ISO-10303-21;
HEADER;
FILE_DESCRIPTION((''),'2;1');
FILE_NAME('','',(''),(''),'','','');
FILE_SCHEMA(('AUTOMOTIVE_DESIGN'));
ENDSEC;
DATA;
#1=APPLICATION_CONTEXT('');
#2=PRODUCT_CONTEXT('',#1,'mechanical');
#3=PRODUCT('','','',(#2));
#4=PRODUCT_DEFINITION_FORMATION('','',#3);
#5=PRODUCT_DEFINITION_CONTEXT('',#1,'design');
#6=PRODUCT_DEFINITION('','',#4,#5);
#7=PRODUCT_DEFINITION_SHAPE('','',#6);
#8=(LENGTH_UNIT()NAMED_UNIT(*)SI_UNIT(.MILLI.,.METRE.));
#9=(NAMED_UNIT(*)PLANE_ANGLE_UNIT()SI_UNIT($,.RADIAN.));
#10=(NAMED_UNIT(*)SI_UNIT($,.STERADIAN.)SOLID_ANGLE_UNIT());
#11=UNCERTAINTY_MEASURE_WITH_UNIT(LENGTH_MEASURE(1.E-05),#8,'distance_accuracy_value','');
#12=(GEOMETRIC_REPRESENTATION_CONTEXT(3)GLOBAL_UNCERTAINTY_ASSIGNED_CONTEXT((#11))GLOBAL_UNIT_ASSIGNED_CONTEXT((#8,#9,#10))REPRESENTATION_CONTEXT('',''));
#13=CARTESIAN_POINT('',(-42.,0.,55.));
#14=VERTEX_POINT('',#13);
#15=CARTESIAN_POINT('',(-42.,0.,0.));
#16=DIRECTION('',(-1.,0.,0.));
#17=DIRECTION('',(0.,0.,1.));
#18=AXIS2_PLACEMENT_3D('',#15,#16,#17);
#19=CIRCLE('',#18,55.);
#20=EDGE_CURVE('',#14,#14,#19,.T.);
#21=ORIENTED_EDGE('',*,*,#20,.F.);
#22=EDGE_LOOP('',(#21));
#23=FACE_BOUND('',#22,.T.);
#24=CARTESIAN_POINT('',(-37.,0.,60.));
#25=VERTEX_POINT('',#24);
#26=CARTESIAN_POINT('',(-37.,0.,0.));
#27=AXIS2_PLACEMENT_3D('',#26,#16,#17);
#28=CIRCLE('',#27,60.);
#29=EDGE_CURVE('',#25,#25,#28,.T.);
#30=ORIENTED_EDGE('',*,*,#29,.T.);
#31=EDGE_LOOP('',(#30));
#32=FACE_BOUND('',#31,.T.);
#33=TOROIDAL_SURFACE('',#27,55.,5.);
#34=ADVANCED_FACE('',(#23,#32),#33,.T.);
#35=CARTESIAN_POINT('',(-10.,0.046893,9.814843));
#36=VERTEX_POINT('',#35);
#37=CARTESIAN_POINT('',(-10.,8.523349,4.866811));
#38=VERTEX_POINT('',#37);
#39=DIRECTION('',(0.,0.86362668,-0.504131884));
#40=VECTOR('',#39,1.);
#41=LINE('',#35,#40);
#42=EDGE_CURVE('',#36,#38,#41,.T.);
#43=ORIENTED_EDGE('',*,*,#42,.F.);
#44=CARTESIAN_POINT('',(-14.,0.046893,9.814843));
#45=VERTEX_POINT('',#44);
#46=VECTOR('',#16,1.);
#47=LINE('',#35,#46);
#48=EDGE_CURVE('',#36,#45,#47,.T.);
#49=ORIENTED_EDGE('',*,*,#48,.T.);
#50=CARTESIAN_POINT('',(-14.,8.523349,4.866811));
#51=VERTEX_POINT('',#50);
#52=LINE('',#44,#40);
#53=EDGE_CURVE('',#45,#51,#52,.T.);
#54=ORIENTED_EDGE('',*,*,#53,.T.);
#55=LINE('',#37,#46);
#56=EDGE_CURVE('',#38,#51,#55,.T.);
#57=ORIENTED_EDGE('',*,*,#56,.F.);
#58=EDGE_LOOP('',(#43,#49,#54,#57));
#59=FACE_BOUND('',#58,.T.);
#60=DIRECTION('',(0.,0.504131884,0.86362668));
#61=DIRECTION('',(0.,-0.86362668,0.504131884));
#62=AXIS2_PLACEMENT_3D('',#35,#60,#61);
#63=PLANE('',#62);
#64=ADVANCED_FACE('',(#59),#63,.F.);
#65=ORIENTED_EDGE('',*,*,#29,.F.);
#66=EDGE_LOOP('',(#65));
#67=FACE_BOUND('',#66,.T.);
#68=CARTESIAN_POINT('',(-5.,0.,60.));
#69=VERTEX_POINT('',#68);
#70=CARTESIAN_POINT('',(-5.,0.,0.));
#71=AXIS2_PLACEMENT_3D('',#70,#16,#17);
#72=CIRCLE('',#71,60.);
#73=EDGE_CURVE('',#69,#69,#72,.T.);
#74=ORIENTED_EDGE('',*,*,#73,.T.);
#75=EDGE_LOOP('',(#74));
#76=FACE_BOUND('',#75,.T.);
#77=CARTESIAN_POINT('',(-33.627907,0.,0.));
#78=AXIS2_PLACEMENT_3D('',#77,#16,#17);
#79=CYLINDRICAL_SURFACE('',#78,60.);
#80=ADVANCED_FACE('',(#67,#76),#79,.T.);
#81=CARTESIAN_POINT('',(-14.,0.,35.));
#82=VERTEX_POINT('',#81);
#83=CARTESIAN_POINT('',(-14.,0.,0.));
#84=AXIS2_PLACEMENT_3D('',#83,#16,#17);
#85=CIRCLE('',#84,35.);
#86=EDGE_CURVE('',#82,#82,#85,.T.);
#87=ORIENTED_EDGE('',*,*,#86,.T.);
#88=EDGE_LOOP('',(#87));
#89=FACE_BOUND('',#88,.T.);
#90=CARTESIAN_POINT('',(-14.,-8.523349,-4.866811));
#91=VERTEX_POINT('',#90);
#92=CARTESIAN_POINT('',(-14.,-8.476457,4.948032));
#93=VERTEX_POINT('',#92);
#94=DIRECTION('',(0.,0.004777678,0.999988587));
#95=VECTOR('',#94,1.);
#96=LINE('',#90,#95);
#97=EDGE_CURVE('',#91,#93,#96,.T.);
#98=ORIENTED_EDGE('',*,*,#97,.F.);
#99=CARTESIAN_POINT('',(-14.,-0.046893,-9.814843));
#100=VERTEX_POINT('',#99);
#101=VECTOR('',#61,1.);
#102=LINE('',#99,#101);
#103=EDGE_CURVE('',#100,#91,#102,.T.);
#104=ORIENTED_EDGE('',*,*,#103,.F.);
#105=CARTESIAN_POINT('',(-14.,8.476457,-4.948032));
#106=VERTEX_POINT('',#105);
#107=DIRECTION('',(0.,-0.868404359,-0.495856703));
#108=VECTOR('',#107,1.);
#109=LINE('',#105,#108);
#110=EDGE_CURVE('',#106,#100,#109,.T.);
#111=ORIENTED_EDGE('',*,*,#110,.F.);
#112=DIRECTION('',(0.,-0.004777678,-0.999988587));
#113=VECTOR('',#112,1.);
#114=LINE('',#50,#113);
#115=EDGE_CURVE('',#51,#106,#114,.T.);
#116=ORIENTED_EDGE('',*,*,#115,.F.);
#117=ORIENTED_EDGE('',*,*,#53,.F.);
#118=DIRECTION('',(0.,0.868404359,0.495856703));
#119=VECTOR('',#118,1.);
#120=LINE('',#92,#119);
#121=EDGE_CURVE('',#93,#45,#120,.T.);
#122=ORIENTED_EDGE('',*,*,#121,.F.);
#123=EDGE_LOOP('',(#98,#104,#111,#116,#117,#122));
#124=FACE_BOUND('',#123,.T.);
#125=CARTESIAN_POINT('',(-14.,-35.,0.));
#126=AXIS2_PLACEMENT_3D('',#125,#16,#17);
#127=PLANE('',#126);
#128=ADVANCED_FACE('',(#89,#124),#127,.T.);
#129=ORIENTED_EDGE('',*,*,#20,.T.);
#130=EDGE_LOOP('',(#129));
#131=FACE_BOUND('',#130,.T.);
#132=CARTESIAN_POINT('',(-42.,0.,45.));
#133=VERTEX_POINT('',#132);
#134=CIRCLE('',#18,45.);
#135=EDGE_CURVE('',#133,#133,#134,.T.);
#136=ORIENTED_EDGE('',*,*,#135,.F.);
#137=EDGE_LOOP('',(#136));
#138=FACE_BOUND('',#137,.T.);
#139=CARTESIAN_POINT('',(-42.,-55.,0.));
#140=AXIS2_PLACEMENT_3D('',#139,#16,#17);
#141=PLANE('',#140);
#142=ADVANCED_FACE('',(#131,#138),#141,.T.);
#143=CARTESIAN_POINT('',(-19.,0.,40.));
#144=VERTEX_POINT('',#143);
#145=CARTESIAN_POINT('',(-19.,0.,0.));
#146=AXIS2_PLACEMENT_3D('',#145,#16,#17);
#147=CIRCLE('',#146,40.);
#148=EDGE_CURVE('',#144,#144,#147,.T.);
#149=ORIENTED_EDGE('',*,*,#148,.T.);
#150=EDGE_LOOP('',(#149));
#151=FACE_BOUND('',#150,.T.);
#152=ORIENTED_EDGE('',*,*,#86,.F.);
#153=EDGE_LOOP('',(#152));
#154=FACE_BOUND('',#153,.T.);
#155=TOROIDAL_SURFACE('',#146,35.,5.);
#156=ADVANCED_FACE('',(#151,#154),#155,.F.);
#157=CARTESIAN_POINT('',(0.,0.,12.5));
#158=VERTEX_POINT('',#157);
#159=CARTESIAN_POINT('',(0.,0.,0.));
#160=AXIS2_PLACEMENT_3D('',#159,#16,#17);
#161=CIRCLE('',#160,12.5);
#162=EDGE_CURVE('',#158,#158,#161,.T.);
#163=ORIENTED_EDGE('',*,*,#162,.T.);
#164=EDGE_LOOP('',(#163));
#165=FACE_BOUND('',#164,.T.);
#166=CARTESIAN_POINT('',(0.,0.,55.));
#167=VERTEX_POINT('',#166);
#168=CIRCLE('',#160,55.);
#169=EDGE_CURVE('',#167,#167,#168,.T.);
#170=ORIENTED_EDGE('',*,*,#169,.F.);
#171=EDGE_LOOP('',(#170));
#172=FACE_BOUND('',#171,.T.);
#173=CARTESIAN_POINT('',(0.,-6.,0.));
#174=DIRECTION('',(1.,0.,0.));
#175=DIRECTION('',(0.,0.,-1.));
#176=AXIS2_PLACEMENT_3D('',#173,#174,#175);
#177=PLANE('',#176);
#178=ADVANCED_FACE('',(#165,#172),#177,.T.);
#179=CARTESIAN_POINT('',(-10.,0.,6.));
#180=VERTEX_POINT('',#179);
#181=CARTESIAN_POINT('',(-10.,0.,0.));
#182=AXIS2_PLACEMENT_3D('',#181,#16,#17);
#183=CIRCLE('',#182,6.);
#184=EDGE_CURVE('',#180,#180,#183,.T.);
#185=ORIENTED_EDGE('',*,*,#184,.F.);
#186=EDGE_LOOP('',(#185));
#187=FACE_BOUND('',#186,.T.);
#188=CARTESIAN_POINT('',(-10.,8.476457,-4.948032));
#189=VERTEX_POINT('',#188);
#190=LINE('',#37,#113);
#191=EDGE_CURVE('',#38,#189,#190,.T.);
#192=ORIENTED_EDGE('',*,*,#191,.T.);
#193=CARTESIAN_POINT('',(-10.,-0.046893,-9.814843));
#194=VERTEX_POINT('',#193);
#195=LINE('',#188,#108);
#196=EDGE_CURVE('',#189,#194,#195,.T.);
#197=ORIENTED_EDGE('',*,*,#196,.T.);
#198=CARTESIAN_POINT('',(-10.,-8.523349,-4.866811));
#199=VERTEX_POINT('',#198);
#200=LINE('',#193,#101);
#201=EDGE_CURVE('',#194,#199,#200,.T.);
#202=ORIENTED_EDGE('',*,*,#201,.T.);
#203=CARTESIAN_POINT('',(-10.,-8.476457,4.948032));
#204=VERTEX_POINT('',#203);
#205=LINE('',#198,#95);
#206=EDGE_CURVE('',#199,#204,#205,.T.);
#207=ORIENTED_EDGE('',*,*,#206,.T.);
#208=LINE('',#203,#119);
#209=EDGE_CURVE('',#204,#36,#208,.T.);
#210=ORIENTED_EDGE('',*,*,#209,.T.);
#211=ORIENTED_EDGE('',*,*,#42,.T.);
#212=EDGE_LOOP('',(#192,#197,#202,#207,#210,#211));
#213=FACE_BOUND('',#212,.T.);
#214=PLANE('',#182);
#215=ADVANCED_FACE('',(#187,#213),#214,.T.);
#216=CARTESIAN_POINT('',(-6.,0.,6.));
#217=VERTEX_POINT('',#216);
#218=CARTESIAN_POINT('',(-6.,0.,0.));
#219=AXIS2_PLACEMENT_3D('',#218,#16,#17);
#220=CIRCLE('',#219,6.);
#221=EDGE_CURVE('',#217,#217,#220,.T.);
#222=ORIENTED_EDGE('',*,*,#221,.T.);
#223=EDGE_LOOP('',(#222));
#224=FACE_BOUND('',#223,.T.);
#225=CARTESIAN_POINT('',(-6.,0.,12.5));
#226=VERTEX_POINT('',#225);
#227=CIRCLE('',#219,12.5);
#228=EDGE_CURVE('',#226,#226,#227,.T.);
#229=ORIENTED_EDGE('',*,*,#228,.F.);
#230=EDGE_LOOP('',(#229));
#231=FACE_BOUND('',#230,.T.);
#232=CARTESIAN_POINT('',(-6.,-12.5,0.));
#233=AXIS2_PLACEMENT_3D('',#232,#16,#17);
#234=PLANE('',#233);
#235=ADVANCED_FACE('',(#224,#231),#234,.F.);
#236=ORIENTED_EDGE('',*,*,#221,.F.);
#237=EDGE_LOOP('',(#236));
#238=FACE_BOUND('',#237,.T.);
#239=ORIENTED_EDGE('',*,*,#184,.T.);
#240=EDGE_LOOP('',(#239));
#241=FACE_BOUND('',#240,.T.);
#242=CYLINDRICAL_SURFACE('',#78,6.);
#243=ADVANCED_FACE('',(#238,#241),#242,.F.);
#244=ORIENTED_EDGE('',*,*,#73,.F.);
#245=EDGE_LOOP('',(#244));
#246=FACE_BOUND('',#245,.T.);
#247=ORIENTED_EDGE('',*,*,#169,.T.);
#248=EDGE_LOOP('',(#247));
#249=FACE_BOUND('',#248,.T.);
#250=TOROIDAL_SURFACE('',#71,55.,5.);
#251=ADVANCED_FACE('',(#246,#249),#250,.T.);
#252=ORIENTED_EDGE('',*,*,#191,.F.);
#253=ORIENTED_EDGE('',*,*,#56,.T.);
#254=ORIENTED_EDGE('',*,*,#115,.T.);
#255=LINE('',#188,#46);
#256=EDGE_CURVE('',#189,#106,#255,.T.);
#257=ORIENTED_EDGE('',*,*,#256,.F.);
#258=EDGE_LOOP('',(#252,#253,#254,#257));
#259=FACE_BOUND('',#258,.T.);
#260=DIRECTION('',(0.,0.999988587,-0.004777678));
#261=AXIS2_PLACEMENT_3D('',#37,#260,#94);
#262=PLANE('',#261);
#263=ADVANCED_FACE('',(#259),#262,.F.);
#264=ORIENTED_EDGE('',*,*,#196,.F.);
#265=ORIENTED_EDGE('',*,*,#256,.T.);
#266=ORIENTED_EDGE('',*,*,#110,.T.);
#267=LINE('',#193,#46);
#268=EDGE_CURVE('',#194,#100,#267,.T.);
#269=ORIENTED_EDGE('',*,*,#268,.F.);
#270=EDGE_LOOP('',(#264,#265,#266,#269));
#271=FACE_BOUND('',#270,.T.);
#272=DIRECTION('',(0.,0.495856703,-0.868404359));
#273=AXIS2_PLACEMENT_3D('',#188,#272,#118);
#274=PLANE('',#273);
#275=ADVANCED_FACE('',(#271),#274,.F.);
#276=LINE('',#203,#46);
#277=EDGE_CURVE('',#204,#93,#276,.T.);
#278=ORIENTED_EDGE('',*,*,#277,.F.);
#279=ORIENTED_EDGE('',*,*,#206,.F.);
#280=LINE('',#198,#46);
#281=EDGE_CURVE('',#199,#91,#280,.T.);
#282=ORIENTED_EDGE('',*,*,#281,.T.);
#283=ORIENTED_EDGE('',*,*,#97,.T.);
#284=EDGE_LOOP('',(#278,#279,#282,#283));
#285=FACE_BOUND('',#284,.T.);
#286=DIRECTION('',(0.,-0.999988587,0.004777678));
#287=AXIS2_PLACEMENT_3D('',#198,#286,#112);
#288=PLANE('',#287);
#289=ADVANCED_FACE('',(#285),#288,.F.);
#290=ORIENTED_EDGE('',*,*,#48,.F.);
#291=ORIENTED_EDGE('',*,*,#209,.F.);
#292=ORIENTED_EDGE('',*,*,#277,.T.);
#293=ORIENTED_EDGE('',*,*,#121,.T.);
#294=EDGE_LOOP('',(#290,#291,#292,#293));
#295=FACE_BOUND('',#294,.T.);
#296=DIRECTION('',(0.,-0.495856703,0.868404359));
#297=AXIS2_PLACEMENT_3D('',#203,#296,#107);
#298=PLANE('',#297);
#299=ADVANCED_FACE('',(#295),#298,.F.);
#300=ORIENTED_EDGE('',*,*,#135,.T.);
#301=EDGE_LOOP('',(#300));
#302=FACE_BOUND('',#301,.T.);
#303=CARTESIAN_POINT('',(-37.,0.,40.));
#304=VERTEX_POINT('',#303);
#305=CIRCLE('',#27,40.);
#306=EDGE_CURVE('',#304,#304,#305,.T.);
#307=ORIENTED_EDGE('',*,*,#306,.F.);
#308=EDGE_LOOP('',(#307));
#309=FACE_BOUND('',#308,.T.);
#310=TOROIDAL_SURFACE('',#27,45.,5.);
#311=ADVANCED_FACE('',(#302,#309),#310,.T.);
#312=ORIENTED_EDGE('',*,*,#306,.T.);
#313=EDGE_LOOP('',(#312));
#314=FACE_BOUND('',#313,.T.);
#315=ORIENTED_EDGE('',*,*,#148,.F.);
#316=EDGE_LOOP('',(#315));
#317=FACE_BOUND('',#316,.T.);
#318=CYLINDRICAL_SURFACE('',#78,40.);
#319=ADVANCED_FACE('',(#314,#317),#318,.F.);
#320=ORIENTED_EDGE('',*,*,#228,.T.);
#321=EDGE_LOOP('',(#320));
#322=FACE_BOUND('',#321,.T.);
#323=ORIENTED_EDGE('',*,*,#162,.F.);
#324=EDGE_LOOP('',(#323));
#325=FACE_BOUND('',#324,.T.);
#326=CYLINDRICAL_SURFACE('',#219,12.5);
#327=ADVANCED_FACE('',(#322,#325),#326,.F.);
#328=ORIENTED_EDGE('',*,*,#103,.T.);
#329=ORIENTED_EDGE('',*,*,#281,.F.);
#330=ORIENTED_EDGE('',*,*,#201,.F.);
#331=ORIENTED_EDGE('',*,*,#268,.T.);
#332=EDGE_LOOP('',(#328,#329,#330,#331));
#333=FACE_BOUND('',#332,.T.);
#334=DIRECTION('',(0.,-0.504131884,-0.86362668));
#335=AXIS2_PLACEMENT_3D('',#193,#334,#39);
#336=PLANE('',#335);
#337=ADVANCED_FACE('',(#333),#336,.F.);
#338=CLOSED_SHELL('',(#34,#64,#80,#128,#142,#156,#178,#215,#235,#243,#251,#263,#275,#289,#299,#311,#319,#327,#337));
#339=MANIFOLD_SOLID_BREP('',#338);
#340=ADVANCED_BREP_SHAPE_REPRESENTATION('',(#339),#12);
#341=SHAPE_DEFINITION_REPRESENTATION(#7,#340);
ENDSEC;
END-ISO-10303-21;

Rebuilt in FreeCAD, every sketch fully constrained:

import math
import FreeCAD as App
import Part
import Sketcher
Q = App.Units.Quantity


def add_polygon(sketch, points):
    """Adds a closed chain of lines whose ends are joined by coincident constraints."""
    first, n = sketch.GeometryCount, len(points)
    for a, b in zip(points, points[1:] + points[:1]):
        sketch.addGeometry(Part.LineSegment(App.Vector(*a, 0), App.Vector(*b, 0)), False)
    for i in range(n):
        sketch.addConstraint(Sketcher.Constraint("Coincident", first + i, 2, first + (i + 1) % n, 1))

doc = App.newDocument("Part")
body = doc.addObject("PartDesign::Body", "Body")

sketch1 = doc.addObject("Sketcher::SketchObject", "Sketch")
body.addObject(sketch1)
sketch1.AttachmentSupport = (doc.XY_Plane, [""])
sketch1.MapMode = "FlatFace"
sketch1.addGeometry(Part.LineSegment(App.Vector(0, -55, 0), App.Vector(0, -6, 0)), False)
sketch1.addGeometry(Part.LineSegment(App.Vector(0, -6, 0), App.Vector(-14, -6, 0)), False)
sketch1.addGeometry(Part.LineSegment(App.Vector(-14, -6, 0), App.Vector(-14, -35, 0)), False)
sketch1.addGeometry(Part.ArcOfCircle(Part.Circle(App.Vector(-19, -35, 0), App.Vector(0, 0, 1), 5), math.radians(-90), math.radians(0)), False)
sketch1.addGeometry(Part.LineSegment(App.Vector(-19, -40, 0), App.Vector(-37, -40, 0)), False)
sketch1.addGeometry(Part.ArcOfCircle(Part.Circle(App.Vector(-37, -45, 0), App.Vector(0, 0, 1), 5), math.radians(90), math.radians(180)), False)
sketch1.addGeometry(Part.LineSegment(App.Vector(-42, -45, 0), App.Vector(-42, -55, 0)), False)
sketch1.addGeometry(Part.ArcOfCircle(Part.Circle(App.Vector(-37, -55, 0), App.Vector(0, 0, 1), 5), math.radians(180), math.radians(270)), False)
sketch1.addGeometry(Part.LineSegment(App.Vector(-37, -60, 0), App.Vector(-5, -60, 0)), False)
sketch1.addGeometry(Part.ArcOfCircle(Part.Circle(App.Vector(-5, -55, 0), App.Vector(0, 0, 1), 5), math.radians(-90), math.radians(0)), False)
sketch1.addConstraint(Sketcher.Constraint("Coincident", 0, 2, 1, 1))
sketch1.addConstraint(Sketcher.Constraint("Coincident", 1, 2, 2, 1))
sketch1.addConstraint(Sketcher.Constraint("Tangent", 2, 2, 3, 2))
sketch1.addConstraint(Sketcher.Constraint("Tangent", 3, 1, 4, 1))
sketch1.addConstraint(Sketcher.Constraint("Tangent", 4, 2, 5, 1))
sketch1.addConstraint(Sketcher.Constraint("Tangent", 5, 2, 6, 1))
sketch1.addConstraint(Sketcher.Constraint("Tangent", 6, 2, 7, 1))
sketch1.addConstraint(Sketcher.Constraint("Tangent", 7, 2, 8, 1))
sketch1.addConstraint(Sketcher.Constraint("Tangent", 8, 2, 9, 1))
sketch1.addConstraint(Sketcher.Constraint("Tangent", 9, 2, 0, 1))
sketch1.addConstraint(Sketcher.Constraint("Vertical", 0))
sketch1.addConstraint(Sketcher.Constraint("Horizontal", 1))
sketch1.addConstraint(Sketcher.Constraint("Vertical", 2))
sketch1.addConstraint(Sketcher.Constraint("Horizontal", 4))
sketch1.addConstraint(Sketcher.Constraint("Vertical", 6))
sketch1.addConstraint(Sketcher.Constraint("Horizontal", 8))
sketch1.addConstraint(Sketcher.Constraint("Equal", 3, 5))
sketch1.addConstraint(Sketcher.Constraint("Equal", 5, 7))
sketch1.addConstraint(Sketcher.Constraint("Equal", 7, 9))
sketch1.addConstraint(Sketcher.Constraint("PointOnObject", 0, 2, -2))
sketch1.addConstraint(Sketcher.Constraint("Radius", 3, Q("5 mm")))
sketch1.addConstraint(Sketcher.Constraint("DistanceX", 1, 2, 1, 1, Q("14 mm")))
sketch1.addConstraint(Sketcher.Constraint("DistanceX", 4, 2, 4, 1, Q("18 mm")))
sketch1.addConstraint(Sketcher.Constraint("DistanceY", 0, 1, 0, 2, Q("49 mm")))
sketch1.addConstraint(Sketcher.Constraint("DistanceY", 2, 2, 2, 1, Q("29 mm")))
sketch1.addConstraint(Sketcher.Constraint("DistanceY", 3, 3, -1, 1, Q("35 mm")))
revolution = doc.addObject("PartDesign::Revolution", "Revolution")
body.addObject(revolution)
revolution.Profile = sketch1
revolution.ReferenceAxis = (sketch1, ["H_Axis"])
revolution.Angle = 360

sketch2 = doc.addObject("Sketcher::SketchObject", "Sketch001")
body.addObject(sketch2)
sketch2.AttachmentSupport = (doc.YZ_Plane, [""])
sketch2.MapMode = "FlatFace"
sketch2.AttachmentOffset = App.Placement(App.Vector(0, 0, -14), App.Rotation())
add_polygon(sketch2, [(-8.476457, 4.948032), (0.046893, 9.814843), (8.523349, 4.866811), (8.476457, -4.948032), (-0.046893, -9.814843), (-8.523349, -4.866811)])
sketch2.addConstraint(Sketcher.Constraint("Symmetric", 0, 2, 3, 2, -1, 1))
sketch2.addConstraint(Sketcher.Constraint("Symmetric", 1, 2, 4, 2, -1, 1))
sketch2.addConstraint(Sketcher.Constraint("Symmetric", 2, 2, 5, 2, -1, 1))
sketch2.addConstraint(Sketcher.Constraint("Equal", 0, 1))
sketch2.addConstraint(Sketcher.Constraint("Equal", 1, 2))
sketch2.addConstraint(Sketcher.Constraint("DistanceX", 4, 2, 1, 2, Q("17.046699 mm")))
sketch2.addConstraint(Sketcher.Constraint("DistanceY", -1, 1, 1, 2, Q("4.866811 mm")))
sketch2.addConstraint(Sketcher.Constraint("DistanceY", 2, 2, -1, 1, Q("4.948032 mm")))
sketch2.addConstraint(Sketcher.Constraint("DistanceY", 1, 2, 0, 2, Q("4.948032 mm")))
pocket1 = doc.addObject("PartDesign::Pocket", "Pocket")
body.addObject(pocket1)
pocket1.Profile = sketch2
pocket1.Length = 4
pocket1.Reversed = True

sketch3 = doc.addObject("Sketcher::SketchObject", "Sketch002")
body.addObject(sketch3)
sketch3.AttachmentSupport = (doc.XY_Plane, [""])
sketch3.MapMode = "FlatFace"
add_polygon(sketch3, [(-6, 0), (-6, -12.5), (0, -12.5), (0, 0)])
sketch3.addConstraint(Sketcher.Constraint("Vertical", 0))
sketch3.addConstraint(Sketcher.Constraint("Horizontal", 1))
sketch3.addConstraint(Sketcher.Constraint("Vertical", 2))
sketch3.addConstraint(Sketcher.Constraint("Horizontal", 3))
sketch3.addConstraint(Sketcher.Constraint("Coincident", 2, 2, -1, 1))
sketch3.addConstraint(Sketcher.Constraint("DistanceX", 1, 1, 1, 2, Q("6 mm")))
sketch3.addConstraint(Sketcher.Constraint("DistanceY", 0, 2, 0, 1, Q("12.5 mm")))
groove = doc.addObject("PartDesign::Groove", "Groove")
body.addObject(groove)
groove.Profile = sketch3
groove.ReferenceAxis = (sketch3, ["H_Axis"])
groove.Angle = 360

doc.recompute()
